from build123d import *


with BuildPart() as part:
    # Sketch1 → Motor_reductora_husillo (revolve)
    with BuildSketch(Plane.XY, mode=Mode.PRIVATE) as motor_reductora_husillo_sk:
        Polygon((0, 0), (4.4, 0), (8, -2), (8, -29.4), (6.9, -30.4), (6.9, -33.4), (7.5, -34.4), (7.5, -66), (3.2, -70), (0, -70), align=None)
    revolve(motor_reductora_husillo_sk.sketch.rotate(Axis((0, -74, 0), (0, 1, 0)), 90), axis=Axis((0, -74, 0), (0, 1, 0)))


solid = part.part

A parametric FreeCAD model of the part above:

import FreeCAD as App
import Part
import Sketcher


def add_polygon(sketch, points):
    """Adds a closed chain of lines whose ends are joined by coincident constraints."""
    first, n = sketch.GeometryCount, len(points)
    for a, b in zip(points, points[1:] + points[:1]):
        sketch.addGeometry(Part.LineSegment(App.Vector(*a, 0), App.Vector(*b, 0)), False)
    for i in range(n):
        sketch.addConstraint(Sketcher.Constraint("Coincident", first + i, 2, first + (i + 1) % n, 1))

doc = App.newDocument("Part")
body = doc.addObject("PartDesign::Body", "Body")

# Sketch on XY plane
sketch1 = body.newObject("Sketcher::SketchObject", "Sketch")
sketch1.AttachmentSupport = (doc.getObject("XY_Plane"), [""])
sketch1.MapMode = "FlatFace"
add_polygon(sketch1, [(4.4, 0), (0, 0), (0, -70), (3.2, -70), (7.5, -66), (7.5, -34.4), (6.9, -33.4), (6.9, -30.4), (8, -29.4), (8, -2)])  # lines 0-9
sketch1.addConstraint(Sketcher.Constraint("Horizontal", 0))
sketch1.addConstraint(Sketcher.Constraint("Vertical", 1))
sketch1.addConstraint(Sketcher.Constraint("Horizontal", 2))
sketch1.addConstraint(Sketcher.Constraint("Vertical", 4))
sketch1.addConstraint(Sketcher.Constraint("Vertical", 6))
sketch1.addConstraint(Sketcher.Constraint("Vertical", 8))
sketch1.addConstraint(Sketcher.Constraint("Coincident", 0, 2, -1, 1))
sketch1.addConstraint(Sketcher.Constraint("DistanceY", 1, 2, 1, 1, 70.0))
sketch1.addConstraint(Sketcher.Constraint("DistanceY", 6, 1, 6, 2, 3.0))
sketch1.addConstraint(Sketcher.Constraint("DistanceX", 0, 2, 0, 1, 4.4))
sketch1.addConstraint(Sketcher.Constraint("DistanceX", 2, 1, 2, 2, 3.2))
sketch1.addConstraint(Sketcher.Constraint("DistanceY", 4, 1, 4, 2, 31.6))
sketch1.addConstraint(Sketcher.Constraint("DistanceY", 8, 1, 8, 2, 27.4))
sketch1.addConstraint(Sketcher.Constraint("DistanceY", 3, 2, -1, 1, 66.0))
sketch1.addConstraint(Sketcher.Constraint("DistanceX", -1, 1, 7, 2, 8.0))
sketch1.addConstraint(Sketcher.Constraint("DistanceY", 8, 2, -1, 1, 2.0))
sketch1.addConstraint(Sketcher.Constraint("DistanceY", 4, 2, 5, 2, 1.0))
sketch1.addConstraint(Sketcher.Constraint("DistanceX", -1, 1, 3, 2, 7.5))
sketch1.addConstraint(Sketcher.Constraint("DistanceX", -1, 1, 5, 2, 6.9))
revolution = body.newObject("PartDesign::Revolution", "Revolution")
revolution.Profile = sketch1
revolution.ReferenceAxis = (sketch1, ["V_Axis"])
revolution.Angle = 360

doc.recompute()
